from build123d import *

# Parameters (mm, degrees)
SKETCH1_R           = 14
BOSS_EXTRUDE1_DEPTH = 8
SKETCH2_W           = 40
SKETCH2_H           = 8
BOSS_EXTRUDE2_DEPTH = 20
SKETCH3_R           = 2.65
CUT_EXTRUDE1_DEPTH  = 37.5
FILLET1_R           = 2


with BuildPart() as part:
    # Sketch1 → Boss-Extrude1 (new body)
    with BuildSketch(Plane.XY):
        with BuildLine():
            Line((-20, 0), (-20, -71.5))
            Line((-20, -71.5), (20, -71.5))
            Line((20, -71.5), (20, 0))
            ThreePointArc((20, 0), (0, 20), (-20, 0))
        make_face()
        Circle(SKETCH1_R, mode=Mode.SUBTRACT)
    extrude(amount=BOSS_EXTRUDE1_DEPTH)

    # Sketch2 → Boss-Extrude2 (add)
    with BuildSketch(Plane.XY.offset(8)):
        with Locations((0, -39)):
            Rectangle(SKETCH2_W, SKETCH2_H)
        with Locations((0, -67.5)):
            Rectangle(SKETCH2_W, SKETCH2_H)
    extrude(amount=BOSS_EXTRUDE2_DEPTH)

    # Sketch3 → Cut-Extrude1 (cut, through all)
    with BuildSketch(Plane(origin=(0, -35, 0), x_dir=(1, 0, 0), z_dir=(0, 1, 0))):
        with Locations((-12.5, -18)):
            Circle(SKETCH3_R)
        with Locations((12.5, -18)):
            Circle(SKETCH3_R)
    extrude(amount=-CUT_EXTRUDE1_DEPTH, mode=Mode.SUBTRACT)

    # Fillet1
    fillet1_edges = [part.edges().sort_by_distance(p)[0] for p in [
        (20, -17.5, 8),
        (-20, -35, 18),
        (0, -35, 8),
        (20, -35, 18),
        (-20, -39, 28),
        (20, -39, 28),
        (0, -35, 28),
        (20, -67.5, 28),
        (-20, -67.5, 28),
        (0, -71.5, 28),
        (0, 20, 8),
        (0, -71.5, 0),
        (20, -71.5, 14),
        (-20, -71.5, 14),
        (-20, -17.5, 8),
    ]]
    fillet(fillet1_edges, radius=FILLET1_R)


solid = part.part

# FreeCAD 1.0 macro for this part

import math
import FreeCAD as App
import Part
import Sketcher

V = App.Vector


def edges_at(feature, points):
    """Names of the edges that pass closest to the given points."""
    edges = feature.Shape.Edges
    near = lambda p: min(range(len(edges)), key=lambda i: edges[i].distToShape(Part.Vertex(*p))[0])
    return sorted({f"Edge{near(p) + 1}" for p in points})


def add_polygon(sketch, points):
    """Adds a closed chain of lines whose ends are joined by coincident constraints."""
    first, n = sketch.GeometryCount, len(points)
    for a, b in zip(points, points[1:] + points[:1]):
        sketch.addGeometry(Part.LineSegment(App.Vector(*a, 0), App.Vector(*b, 0)), False)
    for i in range(n):
        sketch.addConstraint(Sketcher.Constraint("Coincident", first + i, 2, first + (i + 1) % n, 1))

doc = App.newDocument("Part")
body = doc.addObject("PartDesign::Body", "Body")

sketch1 = body.newObject("Sketcher::SketchObject", "Sketch")
sketch1.AttachmentSupport = (doc.getObject("XY_Plane"), [""])
sketch1.MapMode = "FlatFace"
sketch1.addGeometry(Part.LineSegment(V(-20, 0, 0), V(-20, -72, 0)), False)
sketch1.addGeometry(Part.LineSegment(V(-20, -72, 0), V(20, -72, 0)), False)
sketch1.addGeometry(Part.LineSegment(V(20, -72, 0), V(20, 0, 0)), False)
sketch1.addGeometry(Part.ArcOfCircle(Part.Circle(V(0, 0, 0), V(0, 0, 1), 20), math.radians(0), math.radians(180)), False)
sketch1.addGeometry(Part.Circle(V(0, 0, 0), V(0, 0, 1), 14), False)
sketch1.addConstraint(Sketcher.Constraint("Coincident", 0, 2, 1, 1))
sketch1.addConstraint(Sketcher.Constraint("Coincident", 1, 2, 2, 1))
sketch1.addConstraint(Sketcher.Constraint("Tangent", 2, 2, 3, 1))
sketch1.addConstraint(Sketcher.Constraint("Tangent", 3, 2, 0, 1))
sketch1.addConstraint(Sketcher.Constraint("Vertical", 0))
sketch1.addConstraint(Sketcher.Constraint("Horizontal", 1))
sketch1.addConstraint(Sketcher.Constraint("Vertical", 2))
sketch1.addConstraint(Sketcher.Constraint("Coincident", 3, 3, -1, 1))
sketch1.addConstraint(Sketcher.Constraint("Coincident", 4, 3, -1, 1))
sketch1.addConstraint(Sketcher.Constraint("Diameter", 4, 28.0))
sketch1.addConstraint(Sketcher.Constraint("Radius", 3, 20.0))
sketch1.addConstraint(Sketcher.Constraint("DistanceY", 0, 2, 0, 1, 71.5))
pad1 = body.newObject("PartDesign::Pad", "Pad")
pad1.Profile = sketch1
pad1.Length = 8

sketch2 = body.newObject("Sketcher::SketchObject", "Sketch001")
sketch2.AttachmentSupport = (doc.getObject("XY_Plane"), [""])
sketch2.MapMode = "FlatFace"
sketch2.AttachmentOffset = App.Placement(V(0, 0, 8), App.Rotation())
add_polygon(sketch2, [(-20, -35), (-20, -43), (20, -43), (20, -35)])
add_polygon(sketch2, [(-20, -64), (-20, -72), (20, -72), (20, -64)])
sketch2.addConstraint(Sketcher.Constraint("Vertical", 0))
sketch2.addConstraint(Sketcher.Constraint("Horizontal", 1))
sketch2.addConstraint(Sketcher.Constraint("Vertical", 2))
sketch2.addConstraint(Sketcher.Constraint("Horizontal", 3))
sketch2.addConstraint(Sketcher.Constraint("Vertical", 4))
sketch2.addConstraint(Sketcher.Constraint("Horizontal", 5))
sketch2.addConstraint(Sketcher.Constraint("Vertical", 6))
sketch2.addConstraint(Sketcher.Constraint("Horizontal", 7))
sketch2.addConstraint(Sketcher.Constraint("Vertical", 3, 2, 4, 2))
sketch2.addConstraint(Sketcher.Constraint("Vertical", 2, 2, 5, 2))
sketch2.addConstraint(Sketcher.Constraint("Equal", 2, 4))
sketch2.addConstraint(Sketcher.Constraint("DistanceX", 1, 1, 1, 2, 40.0))
sketch2.addConstraint(Sketcher.Constraint("DistanceY", 0, 2, 0, 1, 8.0))
sketch2.addConstraint(Sketcher.Constraint("DistanceX", 0, 2, -1, 1, 20.0))
sketch2.addConstraint(Sketcher.Constraint("DistanceY", 0, 2, -1, 1, 43.0))
sketch2.addConstraint(Sketcher.Constraint("DistanceY", 4, 2, -1, 1, 71.5))
pad2 = body.newObject("PartDesign::Pad", "Pad001")
pad2.Profile = sketch2
pad2.Length = 20

sketch3 = body.newObject("Sketcher::SketchObject", "Sketch002")
sketch3.AttachmentSupport = (doc.getObject("XZ_Plane"), [""])
sketch3.MapMode = "FlatFace"
sketch3.AttachmentOffset = App.Placement(V(0, 0, 35), App.Rotation())
sketch3.addGeometry(Part.Circle(V(-12.5, 18, 0), V(0, 0, 1), 2.6), False)
sketch3.addGeometry(Part.Circle(V(12.5, 18, 0), V(0, 0, 1), 2.6), False)
sketch3.addConstraint(Sketcher.Constraint("Equal", 0, 1))
sketch3.addConstraint(Sketcher.Constraint("Symmetric", 0, 3, 1, 3, -2))
sketch3.addConstraint(Sketcher.Constraint("Diameter", 0, 5.3))
sketch3.addConstraint(Sketcher.Constraint("DistanceY", -1, 1, 0, 3, 18.0))
sketch3.addConstraint(Sketcher.Constraint("DistanceX", 0, 3, 1, 3, 25.0))
pocket1 = body.newObject("PartDesign::Pocket", "Pocket")
pocket1.Profile = sketch3
pocket1.Type = "ThroughAll"
pocket1.Reversed = True
doc.recompute()

fillet = body.newObject("PartDesign::Fillet", "Fillet")
fillet.Base = (pocket1, edges_at(pocket1, [
    (20, -17.5, 8),
    (-20, -35, 18),
    (0, -35, 8),
    (20, -35, 18),
    (-20, -39, 28),
    (20, -39, 28),
    (0, -35, 28),
    (20, -67.5, 28),
    (-20, -67.5, 28),
    (0, -71.5, 28),
    (0, 20, 8),
    (0, -71.5, 0),
    (20, -71.5, 14),
    (-20, -71.5, 14),
    (-20, -17.5, 8),
]))
fillet.Radius = 2

doc.recompute()
